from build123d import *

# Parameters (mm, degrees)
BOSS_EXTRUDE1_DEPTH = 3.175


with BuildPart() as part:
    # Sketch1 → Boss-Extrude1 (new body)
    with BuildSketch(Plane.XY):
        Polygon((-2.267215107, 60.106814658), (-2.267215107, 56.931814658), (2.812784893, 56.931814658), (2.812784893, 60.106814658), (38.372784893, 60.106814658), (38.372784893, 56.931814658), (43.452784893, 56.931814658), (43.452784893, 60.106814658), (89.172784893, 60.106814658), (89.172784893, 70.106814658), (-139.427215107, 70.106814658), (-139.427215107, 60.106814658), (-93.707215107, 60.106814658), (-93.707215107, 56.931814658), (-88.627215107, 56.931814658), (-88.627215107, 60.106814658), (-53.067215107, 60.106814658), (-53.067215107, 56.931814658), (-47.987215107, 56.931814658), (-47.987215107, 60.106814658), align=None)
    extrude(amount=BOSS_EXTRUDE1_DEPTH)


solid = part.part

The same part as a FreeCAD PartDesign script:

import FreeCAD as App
import Part
import Sketcher

V = App.Vector
Q = App.Units.Quantity

doc = App.newDocument("Part")
body = doc.addObject("PartDesign::Body", "Body")

# Sketch on XY plane
sketch1 = body.newObject("Sketcher::SketchObject", "Sketch")
sketch1.AttachmentSupport = (doc.getObject("XY_Plane"), [""])
sketch1.MapMode = "FlatFace"
sketch1.addGeometry([
    Part.LineSegment(V(-2.3, 60.1, 0), V(-2.3, 56.9, 0)),  # 0
    Part.LineSegment(V(-2.3, 56.9, 0), V(2.8, 56.9, 0)),  # 1
    Part.LineSegment(V(2.8, 56.9, 0), V(2.8, 60.1, 0)),  # 2
    Part.LineSegment(V(2.8, 60.1, 0), V(38.4, 60.1, 0)),  # 3
    Part.LineSegment(V(38.4, 60.1, 0), V(38.4, 56.9, 0)),  # 4
    Part.LineSegment(V(38.4, 56.9, 0), V(43.5, 56.9, 0)),  # 5
    Part.LineSegment(V(43.5, 56.9, 0), V(43.5, 60.1, 0)),  # 6
    Part.LineSegment(V(43.5, 60.1, 0), V(89.2, 60.1, 0)),  # 7
    Part.LineSegment(V(89.2, 60.1, 0), V(89.2, 70.1, 0)),  # 8
    Part.LineSegment(V(89.2, 70.1, 0), V(-139.4, 70.1, 0)),  # 9
    Part.LineSegment(V(-139.4, 70.1, 0), V(-139.4, 60.1, 0)),  # 10
    Part.LineSegment(V(-139.4, 60.1, 0), V(-93.7, 60.1, 0)),  # 11
    Part.LineSegment(V(-93.7, 60.1, 0), V(-93.7, 56.9, 0)),  # 12
    Part.LineSegment(V(-93.7, 56.9, 0), V(-88.6, 56.9, 0)),  # 13
    Part.LineSegment(V(-88.6, 56.9, 0), V(-88.6, 60.1, 0)),  # 14
    Part.LineSegment(V(-88.6, 60.1, 0), V(-53.1, 60.1, 0)),  # 15
    Part.LineSegment(V(-53.1, 60.1, 0), V(-53.1, 56.9, 0)),  # 16
    Part.LineSegment(V(-53.1, 56.9, 0), V(-48, 56.9, 0)),  # 17
    Part.LineSegment(V(-48, 56.9, 0), V(-48, 60.1, 0)),  # 18
    Part.LineSegment(V(-48, 60.1, 0), V(-2.3, 60.1, 0)),  # 19
], False)
sketch1.addConstraint([
    Sketcher.Constraint("Coincident", 0, 2, 1, 1),
    Sketcher.Constraint("Coincident", 1, 2, 2, 1),
    Sketcher.Constraint("Coincident", 2, 2, 3, 1),
    Sketcher.Constraint("Coincident", 3, 2, 4, 1),
    Sketcher.Constraint("Coincident", 4, 2, 5, 1),
    Sketcher.Constraint("Coincident", 5, 2, 6, 1),
    Sketcher.Constraint("Coincident", 6, 2, 7, 1),
    Sketcher.Constraint("Coincident", 7, 2, 8, 1),
    Sketcher.Constraint("Coincident", 8, 2, 9, 1),
    Sketcher.Constraint("Coincident", 9, 2, 10, 1),
    Sketcher.Constraint("Coincident", 10, 2, 11, 1),
    Sketcher.Constraint("Coincident", 11, 2, 12, 1),
    Sketcher.Constraint("Coincident", 12, 2, 13, 1),
    Sketcher.Constraint("Coincident", 13, 2, 14, 1),
    Sketcher.Constraint("Coincident", 14, 2, 15, 1),
    Sketcher.Constraint("Coincident", 15, 2, 16, 1),
    Sketcher.Constraint("Coincident", 16, 2, 17, 1),
    Sketcher.Constraint("Coincident", 17, 2, 18, 1),
    Sketcher.Constraint("Coincident", 18, 2, 19, 1),
    Sketcher.Constraint("Coincident", 19, 2, 0, 1),
    Sketcher.Constraint("Vertical", 0),
    Sketcher.Constraint("Horizontal", 1),
    Sketcher.Constraint("Vertical", 2),
    Sketcher.Constraint("Horizontal", 3),
    Sketcher.Constraint("Vertical", 4),
    Sketcher.Constraint("Horizontal", 5),
    Sketcher.Constraint("Vertical", 6),
    Sketcher.Constraint("Horizontal", 7),
    Sketcher.Constraint("Vertical", 8),
    Sketcher.Constraint("Horizontal", 9),
    Sketcher.Constraint("Vertical", 10),
    Sketcher.Constraint("Horizontal", 11),
    Sketcher.Constraint("Vertical", 12),
    Sketcher.Constraint("Horizontal", 13),
    Sketcher.Constraint("Vertical", 14),
    Sketcher.Constraint("Horizontal", 15),
    Sketcher.Constraint("Vertical", 16),
    Sketcher.Constraint("Horizontal", 17),
    Sketcher.Constraint("Vertical", 18),
    Sketcher.Constraint("Horizontal", 19),
    Sketcher.Constraint("Horizontal", 1, 2, 4, 2),
    Sketcher.Constraint("Horizontal", 3, 2, 6, 2),
    Sketcher.Constraint("Horizontal", 7, 2, 10, 2),
    Sketcher.Constraint("Horizontal", 5, 2, 12, 2),
    Sketcher.Constraint("Horizontal", 11, 2, 14, 2),
    Sketcher.Constraint("Horizontal", 13, 2, 16, 2),
    Sketcher.Constraint("Horizontal", 15, 2, 18, 2),
    Sketcher.Constraint("Equal", 1, 5),
    Sketcher.Constraint("Equal", 7, 11),
    Sketcher.Constraint("Equal", 5, 13),
    Sketcher.Constraint("Equal", 3, 15),
    Sketcher.Constraint("Equal", 13, 17),
    Sketcher.Constraint("Equal", 11, 19),
    Sketcher.Constraint("DistanceX", 9, 2, 9, 1, Q("9 in")),
    Sketcher.Constraint("DistanceX", 1, 1, 1, 2, Q("0.2 in")),
    Sketcher.Constraint("DistanceX", 3, 1, 3, 2, Q("1.4 in")),
    Sketcher.Constraint("DistanceY", 0, 2, 0, 1, Q("0.125 in")),
    Sketcher.Constraint("DistanceY", 8, 1, 8, 2, 10.0),
    Sketcher.Constraint("DistanceX", 0, 2, -1, 1, 2.267215),
    Sketcher.Constraint("DistanceY", -1, 1, 0, 2, 56.931815),
])
pad1 = body.newObject("PartDesign::Pad", "Pad")
pad1.Profile = sketch1
pad1.Length = Q("0.125 in")

doc.recompute()
